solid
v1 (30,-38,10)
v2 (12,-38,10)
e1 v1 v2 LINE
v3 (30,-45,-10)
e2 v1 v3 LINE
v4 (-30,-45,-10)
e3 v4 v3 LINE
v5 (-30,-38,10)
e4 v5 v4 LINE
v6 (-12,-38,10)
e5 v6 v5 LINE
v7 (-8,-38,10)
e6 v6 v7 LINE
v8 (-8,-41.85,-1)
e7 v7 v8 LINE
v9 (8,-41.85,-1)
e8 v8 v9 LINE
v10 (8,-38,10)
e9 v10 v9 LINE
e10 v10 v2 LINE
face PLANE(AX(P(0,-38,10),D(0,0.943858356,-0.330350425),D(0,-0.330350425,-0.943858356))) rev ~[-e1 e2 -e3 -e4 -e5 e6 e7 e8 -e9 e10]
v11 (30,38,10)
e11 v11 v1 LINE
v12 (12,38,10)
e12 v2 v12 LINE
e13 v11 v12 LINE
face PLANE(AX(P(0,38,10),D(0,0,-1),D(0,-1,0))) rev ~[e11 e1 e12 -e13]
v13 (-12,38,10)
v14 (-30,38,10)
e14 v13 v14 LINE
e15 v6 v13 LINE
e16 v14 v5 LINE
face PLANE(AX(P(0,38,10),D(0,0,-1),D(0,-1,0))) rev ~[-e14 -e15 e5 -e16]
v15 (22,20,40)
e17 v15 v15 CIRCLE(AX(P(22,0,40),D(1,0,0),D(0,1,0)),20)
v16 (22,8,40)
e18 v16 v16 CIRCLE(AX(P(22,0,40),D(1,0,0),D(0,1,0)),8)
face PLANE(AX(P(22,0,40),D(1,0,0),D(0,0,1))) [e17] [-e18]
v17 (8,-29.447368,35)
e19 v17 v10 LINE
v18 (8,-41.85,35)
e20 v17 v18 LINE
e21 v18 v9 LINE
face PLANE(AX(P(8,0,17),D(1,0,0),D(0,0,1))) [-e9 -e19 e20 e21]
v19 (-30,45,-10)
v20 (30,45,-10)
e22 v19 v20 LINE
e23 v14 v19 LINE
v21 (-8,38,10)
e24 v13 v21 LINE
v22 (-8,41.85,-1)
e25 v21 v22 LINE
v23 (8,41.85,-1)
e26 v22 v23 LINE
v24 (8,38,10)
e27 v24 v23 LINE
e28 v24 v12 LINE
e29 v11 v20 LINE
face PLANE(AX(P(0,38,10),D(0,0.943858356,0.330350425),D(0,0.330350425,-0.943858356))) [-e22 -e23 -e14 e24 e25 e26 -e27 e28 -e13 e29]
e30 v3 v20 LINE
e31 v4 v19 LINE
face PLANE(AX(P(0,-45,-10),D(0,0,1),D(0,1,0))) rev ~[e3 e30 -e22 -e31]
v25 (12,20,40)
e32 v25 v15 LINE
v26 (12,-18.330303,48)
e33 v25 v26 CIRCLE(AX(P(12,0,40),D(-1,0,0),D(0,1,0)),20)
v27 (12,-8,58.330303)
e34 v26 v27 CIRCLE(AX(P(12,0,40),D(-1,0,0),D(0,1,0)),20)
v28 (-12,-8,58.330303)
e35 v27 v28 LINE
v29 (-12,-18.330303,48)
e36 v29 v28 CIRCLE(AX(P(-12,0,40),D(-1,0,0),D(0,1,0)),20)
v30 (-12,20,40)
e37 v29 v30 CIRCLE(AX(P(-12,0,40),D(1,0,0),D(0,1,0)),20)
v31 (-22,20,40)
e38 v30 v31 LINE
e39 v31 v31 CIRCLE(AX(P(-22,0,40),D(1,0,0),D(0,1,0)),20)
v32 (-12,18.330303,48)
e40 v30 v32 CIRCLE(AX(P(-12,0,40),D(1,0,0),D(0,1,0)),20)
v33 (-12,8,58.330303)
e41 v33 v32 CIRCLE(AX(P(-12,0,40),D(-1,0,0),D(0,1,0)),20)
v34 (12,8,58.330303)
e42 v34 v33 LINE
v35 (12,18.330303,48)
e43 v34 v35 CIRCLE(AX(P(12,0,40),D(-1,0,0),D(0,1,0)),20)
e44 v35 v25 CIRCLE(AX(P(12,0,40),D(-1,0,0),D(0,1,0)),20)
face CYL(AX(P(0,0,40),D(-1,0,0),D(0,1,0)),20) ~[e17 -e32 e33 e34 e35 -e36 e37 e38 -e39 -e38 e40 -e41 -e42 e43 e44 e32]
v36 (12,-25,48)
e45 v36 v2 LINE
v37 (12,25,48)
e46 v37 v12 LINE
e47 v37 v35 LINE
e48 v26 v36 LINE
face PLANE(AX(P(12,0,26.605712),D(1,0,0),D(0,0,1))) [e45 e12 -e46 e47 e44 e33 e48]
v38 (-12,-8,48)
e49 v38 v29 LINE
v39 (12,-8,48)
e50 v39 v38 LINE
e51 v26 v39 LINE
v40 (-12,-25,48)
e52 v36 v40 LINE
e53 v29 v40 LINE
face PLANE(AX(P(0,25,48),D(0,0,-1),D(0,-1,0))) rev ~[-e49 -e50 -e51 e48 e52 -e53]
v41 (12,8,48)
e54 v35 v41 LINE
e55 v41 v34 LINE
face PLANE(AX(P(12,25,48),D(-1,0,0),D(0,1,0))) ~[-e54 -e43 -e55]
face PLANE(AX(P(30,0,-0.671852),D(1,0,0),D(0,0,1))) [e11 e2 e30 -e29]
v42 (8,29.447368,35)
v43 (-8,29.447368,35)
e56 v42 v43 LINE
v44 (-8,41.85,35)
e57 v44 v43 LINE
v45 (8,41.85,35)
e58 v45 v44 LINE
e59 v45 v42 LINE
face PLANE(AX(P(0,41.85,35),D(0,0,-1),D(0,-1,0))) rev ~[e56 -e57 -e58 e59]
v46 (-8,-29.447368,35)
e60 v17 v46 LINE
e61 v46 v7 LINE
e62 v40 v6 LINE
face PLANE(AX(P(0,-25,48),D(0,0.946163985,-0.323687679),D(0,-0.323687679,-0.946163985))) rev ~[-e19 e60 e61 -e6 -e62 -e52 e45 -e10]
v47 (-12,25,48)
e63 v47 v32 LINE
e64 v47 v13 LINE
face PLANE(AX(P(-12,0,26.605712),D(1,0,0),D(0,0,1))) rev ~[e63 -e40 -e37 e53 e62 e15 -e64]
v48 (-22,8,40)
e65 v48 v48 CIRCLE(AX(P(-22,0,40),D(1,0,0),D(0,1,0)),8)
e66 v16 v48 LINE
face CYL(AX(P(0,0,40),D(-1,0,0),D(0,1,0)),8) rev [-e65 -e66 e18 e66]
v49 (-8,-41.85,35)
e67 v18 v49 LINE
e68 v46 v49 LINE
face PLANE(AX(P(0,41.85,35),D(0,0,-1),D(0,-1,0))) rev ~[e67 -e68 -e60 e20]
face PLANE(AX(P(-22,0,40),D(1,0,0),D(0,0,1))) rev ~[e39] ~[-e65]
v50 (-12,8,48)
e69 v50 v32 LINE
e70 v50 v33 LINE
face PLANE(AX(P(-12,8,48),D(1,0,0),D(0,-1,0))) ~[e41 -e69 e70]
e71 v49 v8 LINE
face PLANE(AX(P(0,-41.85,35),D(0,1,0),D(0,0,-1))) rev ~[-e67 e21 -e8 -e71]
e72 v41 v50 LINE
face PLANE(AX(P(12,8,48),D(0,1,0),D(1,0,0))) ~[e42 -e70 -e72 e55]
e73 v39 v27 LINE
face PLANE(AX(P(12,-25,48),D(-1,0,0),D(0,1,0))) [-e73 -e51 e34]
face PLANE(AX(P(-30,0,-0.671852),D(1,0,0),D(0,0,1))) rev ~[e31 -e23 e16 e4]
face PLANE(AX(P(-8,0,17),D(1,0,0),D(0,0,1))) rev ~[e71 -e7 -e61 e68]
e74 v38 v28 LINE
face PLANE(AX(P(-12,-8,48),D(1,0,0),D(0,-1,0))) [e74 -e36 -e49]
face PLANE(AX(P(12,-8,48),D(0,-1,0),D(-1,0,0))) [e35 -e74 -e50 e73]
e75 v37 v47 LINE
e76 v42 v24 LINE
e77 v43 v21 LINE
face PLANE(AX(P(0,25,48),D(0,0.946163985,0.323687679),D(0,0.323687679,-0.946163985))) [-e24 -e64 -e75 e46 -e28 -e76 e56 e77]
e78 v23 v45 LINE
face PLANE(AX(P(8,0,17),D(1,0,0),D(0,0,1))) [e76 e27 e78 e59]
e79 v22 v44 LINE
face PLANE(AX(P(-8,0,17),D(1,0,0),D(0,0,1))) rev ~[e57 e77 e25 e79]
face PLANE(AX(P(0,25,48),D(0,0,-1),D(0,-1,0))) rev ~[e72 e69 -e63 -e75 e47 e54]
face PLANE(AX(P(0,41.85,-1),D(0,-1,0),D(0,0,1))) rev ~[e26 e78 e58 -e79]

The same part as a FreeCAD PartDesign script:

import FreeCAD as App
import Part
import Sketcher
from FreeCAD import Vector
Q = App.Units.Quantity


def add_polygon(sketch, points):
    """Adds a closed chain of lines whose ends are joined by coincident constraints."""
    first, n = sketch.GeometryCount, len(points)
    for a, b in zip(points, points[1:] + points[:1]):
        sketch.addGeometry(Part.LineSegment(App.Vector(*a, 0), App.Vector(*b, 0)), False)
    for i in range(n):
        sketch.addConstraint(Sketcher.Constraint("Coincident", first + i, 2, first + (i + 1) % n, 1))

doc = App.newDocument("Part")
body = doc.addObject("PartDesign::Body", "Body")

# Sketch on YZ plane
sketch1 = body.newObject("Sketcher::SketchObject", "Sketch")
sketch1.AttachmentSupport = (doc.getObject("YZ_Plane"), [""])
sketch1.MapMode = "FlatFace"
add_polygon(sketch1, [(38, 10), (-38, 10), (-45, -10), (45, -10)])  # lines 0-3
sketch1.addConstraint([
    Sketcher.Constraint("Horizontal", 0),
    Sketcher.Constraint("Horizontal", 2),
    Sketcher.Constraint("Equal", 1, 3),
    Sketcher.Constraint("DistanceX", 0, 2, 0, 1, Q("76 mm")),
    Sketcher.Constraint("DistanceX", 2, 1, 2, 2, Q("90 mm")),
    Sketcher.Constraint("DistanceX", 0, 2, -1, 1, Q("38 mm")),
    Sketcher.Constraint("DistanceY", -1, 1, 0, 2, Q("10 mm")),
    Sketcher.Constraint("DistanceY", 1, 2, -1, 1, Q("10 mm")),
])
pad1 = body.newObject("PartDesign::Pad", "Pad")
pad1.Profile = sketch1
pad1.Length = 60
pad1.Midplane = True

# Sketch on YZ plane
sketch2 = body.newObject("Sketcher::SketchObject", "Sketch001")
sketch2.AttachmentSupport = (doc.getObject("YZ_Plane"), [""])
sketch2.MapMode = "FlatFace"
add_polygon(sketch2, [(25, 48), (-25, 48), (-38, 10), (38, 10)])  # lines 0-3
sketch2.addConstraint([
    Sketcher.Constraint("Horizontal", 0),
    Sketcher.Constraint("Horizontal", 2),
    Sketcher.Constraint("Equal", 1, 3),
    Sketcher.Constraint("DistanceX", 0, 2, 0, 1, Q("50 mm")),
    Sketcher.Constraint("DistanceX", 2, 1, 2, 2, Q("76 mm")),
    Sketcher.Constraint("DistanceX", 0, 2, -1, 1, Q("25 mm")),
    Sketcher.Constraint("DistanceY", -1, 1, 0, 2, Q("48 mm")),
    Sketcher.Constraint("DistanceY", -1, 1, 1, 2, Q("10 mm")),
])
pad2 = body.newObject("PartDesign::Pad", "Pad001")
pad2.Profile = sketch2
pad2.Length = 24
pad2.Midplane = True

# Sketch on YZ plane
sketch3 = body.newObject("Sketcher::SketchObject", "Sketch002")
sketch3.AttachmentSupport = (doc.getObject("YZ_Plane"), [""])
sketch3.MapMode = "FlatFace"
sketch3.addGeometry(Part.Circle(Vector(0, 40, 0), Vector(0, 0, 1), 20), False)
sketch3.addConstraint([
    Sketcher.Constraint("PointOnObject", 0, 3, -2),
    Sketcher.Constraint("Diameter", 0, Q("40 mm")),
    Sketcher.Constraint("DistanceY", -1, 1, 0, 3, Q("40 mm")),
])
pad3 = body.newObject("PartDesign::Pad", "Pad002")
pad3.Profile = sketch3
pad3.Length = 44
pad3.Midplane = True

# Sketch on YZ plane
sketch4 = body.newObject("Sketcher::SketchObject", "Sketch003")
sketch4.AttachmentSupport = (doc.getObject("YZ_Plane"), [""])
sketch4.MapMode = "FlatFace"
add_polygon(sketch4, [(41.85, 35), (-41.85, 35), (-41.85, -1), (41.85, -1)])  # lines 0-3
sketch4.addConstraint([
    Sketcher.Constraint("Horizontal", 0),
    Sketcher.Constraint("Vertical", 1),
    Sketcher.Constraint("Horizontal", 2),
    Sketcher.Constraint("Vertical", 3),
    Sketcher.Constraint("DistanceY", 1, 2, 1, 1, Q("36 mm")),
    Sketcher.Constraint("DistanceX", 0, 2, 0, 1, Q("83.7 mm")),
    Sketcher.Constraint("DistanceY", -1, 1, 0, 2, Q("35 mm")),
    Sketcher.Constraint("DistanceX", 0, 2, -1, 1, Q("41.85 mm")),
])
pad4 = body.newObject("PartDesign::Pad", "Pad003")
pad4.Profile = sketch4
pad4.Length = 16
pad4.Midplane = True

# Sketch on YZ plane
sketch5 = body.newObject("Sketcher::SketchObject", "Sketch004")
sketch5.AttachmentSupport = (doc.getObject("YZ_Plane"), [""])
sketch5.MapMode = "FlatFace"
sketch5.addGeometry(Part.Circle(Vector(0, 40, 0), Vector(0, 0, 1), 8), False)
sketch5.addConstraint([
    Sketcher.Constraint("PointOnObject", 0, 3, -2),
    Sketcher.Constraint("Diameter", 0, Q("16 mm")),
    Sketcher.Constraint("DistanceY", -1, 1, 0, 3, Q("40 mm")),
])
pocket1 = body.newObject("PartDesign::Pocket", "Pocket")
pocket1.Profile = sketch5
pocket1.Length = 44
pocket1.Midplane = True

# Sketch on XY plane
sketch6 = body.newObject("Sketcher::SketchObject", "Sketch005")
sketch6.AttachmentSupport = (doc.getObject("XY_Plane"), [""])
sketch6.MapMode = "FlatFace"
sketch6.AttachmentOffset = App.Placement(Vector(0, 0, 48), App.Rotation())
add_polygon(sketch6, [(12, -8), (-12, -8), (-12, -25), (12, -25)])  # lines 0-3
sketch6.addConstraint([
    Sketcher.Constraint("Horizontal", 0),
    Sketcher.Constraint("Vertical", 1),
    Sketcher.Constraint("Horizontal", 2),
    Sketcher.Constraint("Vertical", 3),
    Sketcher.Constraint("DistanceX", 0, 2, 0, 1, Q("24 mm")),
    Sketcher.Constraint("DistanceY", 1, 2, 1, 1, Q("17 mm")),
    Sketcher.Constraint("DistanceX", 0, 2, -1, 1, Q("12 mm")),
    Sketcher.Constraint("DistanceY", 0, 2, -1, 1, Q("8 mm")),
])
pocket2 = body.newObject("PartDesign::Pocket", "Pocket001")
pocket2.Profile = sketch6
pocket2.Length = 20.2451
pocket2.Reversed = True
doc.recompute()

mirrored = body.newObject("PartDesign::Mirrored", "Mirrored")
mirrored.Originals = [pocket2]
mirrored.MirrorPlane = (doc.getObject("XZ_Plane"), [""])
body.Tip = mirrored

doc.recompute()
